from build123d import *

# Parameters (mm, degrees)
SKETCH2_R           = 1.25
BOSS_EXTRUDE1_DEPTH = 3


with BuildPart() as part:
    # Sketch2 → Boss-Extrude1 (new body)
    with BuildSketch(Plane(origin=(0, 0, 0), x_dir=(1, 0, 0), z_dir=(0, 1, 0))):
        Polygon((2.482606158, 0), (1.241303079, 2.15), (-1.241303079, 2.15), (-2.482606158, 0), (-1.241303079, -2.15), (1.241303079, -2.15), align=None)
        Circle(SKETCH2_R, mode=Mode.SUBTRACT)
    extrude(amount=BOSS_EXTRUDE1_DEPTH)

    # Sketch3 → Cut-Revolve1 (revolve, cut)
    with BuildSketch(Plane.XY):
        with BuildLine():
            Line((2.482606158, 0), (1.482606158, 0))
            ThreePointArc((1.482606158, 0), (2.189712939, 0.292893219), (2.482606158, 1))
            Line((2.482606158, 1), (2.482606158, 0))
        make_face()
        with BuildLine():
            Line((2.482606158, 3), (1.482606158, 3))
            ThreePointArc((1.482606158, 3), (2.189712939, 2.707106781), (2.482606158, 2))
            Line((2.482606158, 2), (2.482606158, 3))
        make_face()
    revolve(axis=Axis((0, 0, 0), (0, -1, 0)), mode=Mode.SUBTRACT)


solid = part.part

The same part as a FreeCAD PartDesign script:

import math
import FreeCAD as App
import Part
import Sketcher
from FreeCAD import Vector
Q = App.Units.Quantity


def add_polygon(sketch, points):
    """Adds a closed chain of lines whose ends are joined by coincident constraints."""
    first, n = sketch.GeometryCount, len(points)
    for a, b in zip(points, points[1:] + points[:1]):
        sketch.addGeometry(Part.LineSegment(App.Vector(*a, 0), App.Vector(*b, 0)), False)
    for i in range(n):
        sketch.addConstraint(Sketcher.Constraint("Coincident", first + i, 2, first + (i + 1) % n, 1))

doc = App.newDocument("Part")
body = doc.addObject("PartDesign::Body", "Body")

sketch1 = body.newObject("Sketcher::SketchObject", "Sketch")
sketch1.AttachmentSupport = (doc.getObject("XZ_Plane"), [""])
sketch1.MapMode = "FlatFace"
add_polygon(sketch1, [(2.5, 0), (1.2, -2.1), (-1.2, -2.1), (-2.5, 0), (-1.2, 2.1), (1.2, 2.1)])
sketch1.addGeometry(Part.Circle(Vector(0, 0, 0), Vector(0, 0, 1), 1.2), False)
sketch1.addConstraint(Sketcher.Constraint("Horizontal", 1))
sketch1.addConstraint(Sketcher.Constraint("Horizontal", 4))
sketch1.addConstraint(Sketcher.Constraint("Coincident", 6, 3, -1, 1))
sketch1.addConstraint(Sketcher.Constraint("Symmetric", 0, 2, 3, 2, -1, 1))
sketch1.addConstraint(Sketcher.Constraint("Symmetric", 2, 2, 5, 2, -1, 1))
sketch1.addConstraint(Sketcher.Constraint("PointOnObject", 2, 2, -1))
sketch1.addConstraint(Sketcher.Constraint("Parallel", 2, 5))
sketch1.addConstraint(Sketcher.Constraint("Vertical", 1, 2, 3, 2))
sketch1.addConstraint(Sketcher.Constraint("Diameter", 6, 2.5))
sketch1.addConstraint(Sketcher.Constraint("Angle", 0, Q("-120 deg")))
sketch1.addConstraint(Sketcher.Constraint("DistanceY", 1, 2, 3, 2, 4.3))
sketch1.addConstraint(Sketcher.Constraint("DistanceX", 1, 2, 1, 1, 2.482606))
pad1 = body.newObject("PartDesign::Pad", "Pad")
pad1.Profile = sketch1
pad1.Length = 3
pad1.Reversed = True

sketch2 = body.newObject("Sketcher::SketchObject", "Sketch001")
sketch2.AttachmentSupport = (doc.getObject("XY_Plane"), [""])
sketch2.MapMode = "FlatFace"
sketch2.addGeometry(Part.LineSegment(Vector(1.5, 0, 0), Vector(2.5, 0, 0)), False)
sketch2.addGeometry(Part.LineSegment(Vector(2.5, 0, 0), Vector(2.5, 1, 0)), False)
sketch2.addGeometry(Part.ArcOfCircle(Part.Circle(Vector(1.5, 1, 0), Vector(0, 0, 1), 1), math.radians(-90), math.radians(0)), False)
sketch2.addGeometry(Part.LineSegment(Vector(2.5, 3, 0), Vector(1.5, 3, 0)), False)
sketch2.addGeometry(Part.ArcOfCircle(Part.Circle(Vector(1.5, 2, 0), Vector(0, 0, 1), 1), math.radians(0), math.radians(90)), False)
sketch2.addGeometry(Part.LineSegment(Vector(2.5, 2, 0), Vector(2.5, 3, 0)), False)
sketch2.addConstraint(Sketcher.Constraint("Coincident", 0, 2, 1, 1))
sketch2.addConstraint(Sketcher.Constraint("Tangent", 1, 2, 2, 2))
sketch2.addConstraint(Sketcher.Constraint("Tangent", 2, 1, 0, 1))
sketch2.addConstraint(Sketcher.Constraint("Tangent", 3, 2, 4, 2))
sketch2.addConstraint(Sketcher.Constraint("Tangent", 4, 1, 5, 1))
sketch2.addConstraint(Sketcher.Constraint("Coincident", 5, 2, 3, 1))
sketch2.addConstraint(Sketcher.Constraint("Horizontal", 0))
sketch2.addConstraint(Sketcher.Constraint("Vertical", 1))
sketch2.addConstraint(Sketcher.Constraint("Horizontal", 3))
sketch2.addConstraint(Sketcher.Constraint("Vertical", 5))
sketch2.addConstraint(Sketcher.Constraint("Equal", 2, 4))
sketch2.addConstraint(Sketcher.Constraint("PointOnObject", 0, 2, -1))
sketch2.addConstraint(Sketcher.Constraint("Vertical", 2, 3, 4, 3))
sketch2.addConstraint(Sketcher.Constraint("Radius", 2, 1.0))
sketch2.addConstraint(Sketcher.Constraint("DistanceY", -1, 1, 4, 3, 2.0))
sketch2.addConstraint(Sketcher.Constraint("DistanceX", -1, 1, 2, 3, 1.482606))
groove = body.newObject("PartDesign::Groove", "Groove")
groove.Profile = sketch2
groove.ReferenceAxis = (sketch2, ["V_Axis"])
groove.Angle = 360

doc.recompute()
